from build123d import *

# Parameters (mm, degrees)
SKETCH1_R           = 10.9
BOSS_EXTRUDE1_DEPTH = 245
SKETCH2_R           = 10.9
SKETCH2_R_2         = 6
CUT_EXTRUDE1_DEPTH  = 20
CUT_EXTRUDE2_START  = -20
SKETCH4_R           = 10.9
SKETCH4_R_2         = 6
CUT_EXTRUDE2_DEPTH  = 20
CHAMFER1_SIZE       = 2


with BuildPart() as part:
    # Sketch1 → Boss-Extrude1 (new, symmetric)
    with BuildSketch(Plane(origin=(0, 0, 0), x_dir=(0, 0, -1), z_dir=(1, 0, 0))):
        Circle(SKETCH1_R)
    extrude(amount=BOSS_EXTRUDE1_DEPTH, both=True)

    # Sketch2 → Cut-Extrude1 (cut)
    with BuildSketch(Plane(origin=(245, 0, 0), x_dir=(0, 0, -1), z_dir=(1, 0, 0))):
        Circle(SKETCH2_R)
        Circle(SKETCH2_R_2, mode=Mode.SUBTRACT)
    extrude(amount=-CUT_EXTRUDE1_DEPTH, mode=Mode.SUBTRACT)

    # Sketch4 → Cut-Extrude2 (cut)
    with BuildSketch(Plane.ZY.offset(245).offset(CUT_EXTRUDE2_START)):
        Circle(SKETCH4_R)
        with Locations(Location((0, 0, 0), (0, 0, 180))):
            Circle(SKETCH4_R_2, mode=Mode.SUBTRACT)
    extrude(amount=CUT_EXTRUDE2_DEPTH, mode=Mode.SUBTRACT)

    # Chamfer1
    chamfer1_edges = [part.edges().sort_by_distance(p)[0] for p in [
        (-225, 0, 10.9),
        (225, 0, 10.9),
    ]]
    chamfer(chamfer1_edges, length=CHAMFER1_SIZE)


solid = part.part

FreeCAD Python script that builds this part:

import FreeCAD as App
import Part
import Sketcher
from FreeCAD import Vector
Q = App.Units.Quantity


def edges_at(feature, points):
    """Names of the edges that pass closest to the given points."""
    edges = feature.Shape.Edges
    near = lambda p: min(range(len(edges)), key=lambda i: edges[i].distToShape(Part.Vertex(*p))[0])
    return sorted({f"Edge{near(p) + 1}" for p in points})

doc = App.newDocument("Part")
body = doc.addObject("PartDesign::Body", "Body")

sketch1 = doc.addObject("Sketcher::SketchObject", "Sketch")
body.addObject(sketch1)
sketch1.AttachmentSupport = (doc.YZ_Plane, [""])
sketch1.MapMode = "FlatFace"
sketch1.addGeometry(Part.Circle(Vector(0, 0, 0), Vector(0, 0, 1), 10.9), False)
sketch1.addConstraint([
    Sketcher.Constraint("Coincident", 0, 3, -1, 1),
    Sketcher.Constraint("Diameter", 0, Q("21.8 mm")),
])
pad1 = doc.addObject("PartDesign::Pad", "Pad")
body.addObject(pad1)
pad1.Profile = sketch1
pad1.Length = 490
pad1.Midplane = True

sketch2 = doc.addObject("Sketcher::SketchObject", "Sketch001")
body.addObject(sketch2)
sketch2.AttachmentSupport = (doc.YZ_Plane, [""])
sketch2.MapMode = "FlatFace"
sketch2.AttachmentOffset = App.Placement(Vector(0, 0, 245), App.Rotation())
sketch2.addGeometry([
    Part.Circle(Vector(0, 0, 0), Vector(0, 0, 1), 10.9),
    Part.Circle(Vector(0, 0, 0), Vector(0, 0, 1), 6),
], False)
sketch2.addConstraint([
    Sketcher.Constraint("Coincident", 0, 3, -1, 1),
    Sketcher.Constraint("Coincident", 1, 3, -1, 1),
    Sketcher.Constraint("Diameter", 1, Q("12 mm")),
    Sketcher.Constraint("Diameter", 0, Q("21.8 mm")),
])
pocket1 = doc.addObject("PartDesign::Pocket", "Pocket")
body.addObject(pocket1)
pocket1.Profile = sketch2
pocket1.Length = 20

sketch3 = doc.addObject("Sketcher::SketchObject", "Sketch002")
body.addObject(sketch3)
sketch3.AttachmentSupport = (doc.YZ_Plane, [""])
sketch3.MapMode = "FlatFace"
sketch3.AttachmentOffset = App.Placement(Vector(0, 0, -225), App.Rotation())
sketch3.addGeometry([
    Part.Circle(Vector(0, 0, 0), Vector(0, 0, 1), 10.9),
    Part.Circle(Vector(0, 0, 0), Vector(0, 0, 1), 6),
], False)
sketch3.addConstraint([
    Sketcher.Constraint("Coincident", 0, 3, -1, 1),
    Sketcher.Constraint("Coincident", 1, 3, -1, 1),
    Sketcher.Constraint("Diameter", 1, Q("12 mm")),
    Sketcher.Constraint("Diameter", 0, Q("21.8 mm")),
])
pocket2 = doc.addObject("PartDesign::Pocket", "Pocket001")
body.addObject(pocket2)
pocket2.Profile = sketch3
pocket2.Length = 20
doc.recompute()

chamfer = doc.addObject("PartDesign::Chamfer", "Chamfer")
body.addObject(chamfer)
chamfer.Base = (pocket2, edges_at(pocket2, [(-225, 0, 10.9), (225, 0, 10.9)]))
chamfer.Size = 2

doc.recompute()
